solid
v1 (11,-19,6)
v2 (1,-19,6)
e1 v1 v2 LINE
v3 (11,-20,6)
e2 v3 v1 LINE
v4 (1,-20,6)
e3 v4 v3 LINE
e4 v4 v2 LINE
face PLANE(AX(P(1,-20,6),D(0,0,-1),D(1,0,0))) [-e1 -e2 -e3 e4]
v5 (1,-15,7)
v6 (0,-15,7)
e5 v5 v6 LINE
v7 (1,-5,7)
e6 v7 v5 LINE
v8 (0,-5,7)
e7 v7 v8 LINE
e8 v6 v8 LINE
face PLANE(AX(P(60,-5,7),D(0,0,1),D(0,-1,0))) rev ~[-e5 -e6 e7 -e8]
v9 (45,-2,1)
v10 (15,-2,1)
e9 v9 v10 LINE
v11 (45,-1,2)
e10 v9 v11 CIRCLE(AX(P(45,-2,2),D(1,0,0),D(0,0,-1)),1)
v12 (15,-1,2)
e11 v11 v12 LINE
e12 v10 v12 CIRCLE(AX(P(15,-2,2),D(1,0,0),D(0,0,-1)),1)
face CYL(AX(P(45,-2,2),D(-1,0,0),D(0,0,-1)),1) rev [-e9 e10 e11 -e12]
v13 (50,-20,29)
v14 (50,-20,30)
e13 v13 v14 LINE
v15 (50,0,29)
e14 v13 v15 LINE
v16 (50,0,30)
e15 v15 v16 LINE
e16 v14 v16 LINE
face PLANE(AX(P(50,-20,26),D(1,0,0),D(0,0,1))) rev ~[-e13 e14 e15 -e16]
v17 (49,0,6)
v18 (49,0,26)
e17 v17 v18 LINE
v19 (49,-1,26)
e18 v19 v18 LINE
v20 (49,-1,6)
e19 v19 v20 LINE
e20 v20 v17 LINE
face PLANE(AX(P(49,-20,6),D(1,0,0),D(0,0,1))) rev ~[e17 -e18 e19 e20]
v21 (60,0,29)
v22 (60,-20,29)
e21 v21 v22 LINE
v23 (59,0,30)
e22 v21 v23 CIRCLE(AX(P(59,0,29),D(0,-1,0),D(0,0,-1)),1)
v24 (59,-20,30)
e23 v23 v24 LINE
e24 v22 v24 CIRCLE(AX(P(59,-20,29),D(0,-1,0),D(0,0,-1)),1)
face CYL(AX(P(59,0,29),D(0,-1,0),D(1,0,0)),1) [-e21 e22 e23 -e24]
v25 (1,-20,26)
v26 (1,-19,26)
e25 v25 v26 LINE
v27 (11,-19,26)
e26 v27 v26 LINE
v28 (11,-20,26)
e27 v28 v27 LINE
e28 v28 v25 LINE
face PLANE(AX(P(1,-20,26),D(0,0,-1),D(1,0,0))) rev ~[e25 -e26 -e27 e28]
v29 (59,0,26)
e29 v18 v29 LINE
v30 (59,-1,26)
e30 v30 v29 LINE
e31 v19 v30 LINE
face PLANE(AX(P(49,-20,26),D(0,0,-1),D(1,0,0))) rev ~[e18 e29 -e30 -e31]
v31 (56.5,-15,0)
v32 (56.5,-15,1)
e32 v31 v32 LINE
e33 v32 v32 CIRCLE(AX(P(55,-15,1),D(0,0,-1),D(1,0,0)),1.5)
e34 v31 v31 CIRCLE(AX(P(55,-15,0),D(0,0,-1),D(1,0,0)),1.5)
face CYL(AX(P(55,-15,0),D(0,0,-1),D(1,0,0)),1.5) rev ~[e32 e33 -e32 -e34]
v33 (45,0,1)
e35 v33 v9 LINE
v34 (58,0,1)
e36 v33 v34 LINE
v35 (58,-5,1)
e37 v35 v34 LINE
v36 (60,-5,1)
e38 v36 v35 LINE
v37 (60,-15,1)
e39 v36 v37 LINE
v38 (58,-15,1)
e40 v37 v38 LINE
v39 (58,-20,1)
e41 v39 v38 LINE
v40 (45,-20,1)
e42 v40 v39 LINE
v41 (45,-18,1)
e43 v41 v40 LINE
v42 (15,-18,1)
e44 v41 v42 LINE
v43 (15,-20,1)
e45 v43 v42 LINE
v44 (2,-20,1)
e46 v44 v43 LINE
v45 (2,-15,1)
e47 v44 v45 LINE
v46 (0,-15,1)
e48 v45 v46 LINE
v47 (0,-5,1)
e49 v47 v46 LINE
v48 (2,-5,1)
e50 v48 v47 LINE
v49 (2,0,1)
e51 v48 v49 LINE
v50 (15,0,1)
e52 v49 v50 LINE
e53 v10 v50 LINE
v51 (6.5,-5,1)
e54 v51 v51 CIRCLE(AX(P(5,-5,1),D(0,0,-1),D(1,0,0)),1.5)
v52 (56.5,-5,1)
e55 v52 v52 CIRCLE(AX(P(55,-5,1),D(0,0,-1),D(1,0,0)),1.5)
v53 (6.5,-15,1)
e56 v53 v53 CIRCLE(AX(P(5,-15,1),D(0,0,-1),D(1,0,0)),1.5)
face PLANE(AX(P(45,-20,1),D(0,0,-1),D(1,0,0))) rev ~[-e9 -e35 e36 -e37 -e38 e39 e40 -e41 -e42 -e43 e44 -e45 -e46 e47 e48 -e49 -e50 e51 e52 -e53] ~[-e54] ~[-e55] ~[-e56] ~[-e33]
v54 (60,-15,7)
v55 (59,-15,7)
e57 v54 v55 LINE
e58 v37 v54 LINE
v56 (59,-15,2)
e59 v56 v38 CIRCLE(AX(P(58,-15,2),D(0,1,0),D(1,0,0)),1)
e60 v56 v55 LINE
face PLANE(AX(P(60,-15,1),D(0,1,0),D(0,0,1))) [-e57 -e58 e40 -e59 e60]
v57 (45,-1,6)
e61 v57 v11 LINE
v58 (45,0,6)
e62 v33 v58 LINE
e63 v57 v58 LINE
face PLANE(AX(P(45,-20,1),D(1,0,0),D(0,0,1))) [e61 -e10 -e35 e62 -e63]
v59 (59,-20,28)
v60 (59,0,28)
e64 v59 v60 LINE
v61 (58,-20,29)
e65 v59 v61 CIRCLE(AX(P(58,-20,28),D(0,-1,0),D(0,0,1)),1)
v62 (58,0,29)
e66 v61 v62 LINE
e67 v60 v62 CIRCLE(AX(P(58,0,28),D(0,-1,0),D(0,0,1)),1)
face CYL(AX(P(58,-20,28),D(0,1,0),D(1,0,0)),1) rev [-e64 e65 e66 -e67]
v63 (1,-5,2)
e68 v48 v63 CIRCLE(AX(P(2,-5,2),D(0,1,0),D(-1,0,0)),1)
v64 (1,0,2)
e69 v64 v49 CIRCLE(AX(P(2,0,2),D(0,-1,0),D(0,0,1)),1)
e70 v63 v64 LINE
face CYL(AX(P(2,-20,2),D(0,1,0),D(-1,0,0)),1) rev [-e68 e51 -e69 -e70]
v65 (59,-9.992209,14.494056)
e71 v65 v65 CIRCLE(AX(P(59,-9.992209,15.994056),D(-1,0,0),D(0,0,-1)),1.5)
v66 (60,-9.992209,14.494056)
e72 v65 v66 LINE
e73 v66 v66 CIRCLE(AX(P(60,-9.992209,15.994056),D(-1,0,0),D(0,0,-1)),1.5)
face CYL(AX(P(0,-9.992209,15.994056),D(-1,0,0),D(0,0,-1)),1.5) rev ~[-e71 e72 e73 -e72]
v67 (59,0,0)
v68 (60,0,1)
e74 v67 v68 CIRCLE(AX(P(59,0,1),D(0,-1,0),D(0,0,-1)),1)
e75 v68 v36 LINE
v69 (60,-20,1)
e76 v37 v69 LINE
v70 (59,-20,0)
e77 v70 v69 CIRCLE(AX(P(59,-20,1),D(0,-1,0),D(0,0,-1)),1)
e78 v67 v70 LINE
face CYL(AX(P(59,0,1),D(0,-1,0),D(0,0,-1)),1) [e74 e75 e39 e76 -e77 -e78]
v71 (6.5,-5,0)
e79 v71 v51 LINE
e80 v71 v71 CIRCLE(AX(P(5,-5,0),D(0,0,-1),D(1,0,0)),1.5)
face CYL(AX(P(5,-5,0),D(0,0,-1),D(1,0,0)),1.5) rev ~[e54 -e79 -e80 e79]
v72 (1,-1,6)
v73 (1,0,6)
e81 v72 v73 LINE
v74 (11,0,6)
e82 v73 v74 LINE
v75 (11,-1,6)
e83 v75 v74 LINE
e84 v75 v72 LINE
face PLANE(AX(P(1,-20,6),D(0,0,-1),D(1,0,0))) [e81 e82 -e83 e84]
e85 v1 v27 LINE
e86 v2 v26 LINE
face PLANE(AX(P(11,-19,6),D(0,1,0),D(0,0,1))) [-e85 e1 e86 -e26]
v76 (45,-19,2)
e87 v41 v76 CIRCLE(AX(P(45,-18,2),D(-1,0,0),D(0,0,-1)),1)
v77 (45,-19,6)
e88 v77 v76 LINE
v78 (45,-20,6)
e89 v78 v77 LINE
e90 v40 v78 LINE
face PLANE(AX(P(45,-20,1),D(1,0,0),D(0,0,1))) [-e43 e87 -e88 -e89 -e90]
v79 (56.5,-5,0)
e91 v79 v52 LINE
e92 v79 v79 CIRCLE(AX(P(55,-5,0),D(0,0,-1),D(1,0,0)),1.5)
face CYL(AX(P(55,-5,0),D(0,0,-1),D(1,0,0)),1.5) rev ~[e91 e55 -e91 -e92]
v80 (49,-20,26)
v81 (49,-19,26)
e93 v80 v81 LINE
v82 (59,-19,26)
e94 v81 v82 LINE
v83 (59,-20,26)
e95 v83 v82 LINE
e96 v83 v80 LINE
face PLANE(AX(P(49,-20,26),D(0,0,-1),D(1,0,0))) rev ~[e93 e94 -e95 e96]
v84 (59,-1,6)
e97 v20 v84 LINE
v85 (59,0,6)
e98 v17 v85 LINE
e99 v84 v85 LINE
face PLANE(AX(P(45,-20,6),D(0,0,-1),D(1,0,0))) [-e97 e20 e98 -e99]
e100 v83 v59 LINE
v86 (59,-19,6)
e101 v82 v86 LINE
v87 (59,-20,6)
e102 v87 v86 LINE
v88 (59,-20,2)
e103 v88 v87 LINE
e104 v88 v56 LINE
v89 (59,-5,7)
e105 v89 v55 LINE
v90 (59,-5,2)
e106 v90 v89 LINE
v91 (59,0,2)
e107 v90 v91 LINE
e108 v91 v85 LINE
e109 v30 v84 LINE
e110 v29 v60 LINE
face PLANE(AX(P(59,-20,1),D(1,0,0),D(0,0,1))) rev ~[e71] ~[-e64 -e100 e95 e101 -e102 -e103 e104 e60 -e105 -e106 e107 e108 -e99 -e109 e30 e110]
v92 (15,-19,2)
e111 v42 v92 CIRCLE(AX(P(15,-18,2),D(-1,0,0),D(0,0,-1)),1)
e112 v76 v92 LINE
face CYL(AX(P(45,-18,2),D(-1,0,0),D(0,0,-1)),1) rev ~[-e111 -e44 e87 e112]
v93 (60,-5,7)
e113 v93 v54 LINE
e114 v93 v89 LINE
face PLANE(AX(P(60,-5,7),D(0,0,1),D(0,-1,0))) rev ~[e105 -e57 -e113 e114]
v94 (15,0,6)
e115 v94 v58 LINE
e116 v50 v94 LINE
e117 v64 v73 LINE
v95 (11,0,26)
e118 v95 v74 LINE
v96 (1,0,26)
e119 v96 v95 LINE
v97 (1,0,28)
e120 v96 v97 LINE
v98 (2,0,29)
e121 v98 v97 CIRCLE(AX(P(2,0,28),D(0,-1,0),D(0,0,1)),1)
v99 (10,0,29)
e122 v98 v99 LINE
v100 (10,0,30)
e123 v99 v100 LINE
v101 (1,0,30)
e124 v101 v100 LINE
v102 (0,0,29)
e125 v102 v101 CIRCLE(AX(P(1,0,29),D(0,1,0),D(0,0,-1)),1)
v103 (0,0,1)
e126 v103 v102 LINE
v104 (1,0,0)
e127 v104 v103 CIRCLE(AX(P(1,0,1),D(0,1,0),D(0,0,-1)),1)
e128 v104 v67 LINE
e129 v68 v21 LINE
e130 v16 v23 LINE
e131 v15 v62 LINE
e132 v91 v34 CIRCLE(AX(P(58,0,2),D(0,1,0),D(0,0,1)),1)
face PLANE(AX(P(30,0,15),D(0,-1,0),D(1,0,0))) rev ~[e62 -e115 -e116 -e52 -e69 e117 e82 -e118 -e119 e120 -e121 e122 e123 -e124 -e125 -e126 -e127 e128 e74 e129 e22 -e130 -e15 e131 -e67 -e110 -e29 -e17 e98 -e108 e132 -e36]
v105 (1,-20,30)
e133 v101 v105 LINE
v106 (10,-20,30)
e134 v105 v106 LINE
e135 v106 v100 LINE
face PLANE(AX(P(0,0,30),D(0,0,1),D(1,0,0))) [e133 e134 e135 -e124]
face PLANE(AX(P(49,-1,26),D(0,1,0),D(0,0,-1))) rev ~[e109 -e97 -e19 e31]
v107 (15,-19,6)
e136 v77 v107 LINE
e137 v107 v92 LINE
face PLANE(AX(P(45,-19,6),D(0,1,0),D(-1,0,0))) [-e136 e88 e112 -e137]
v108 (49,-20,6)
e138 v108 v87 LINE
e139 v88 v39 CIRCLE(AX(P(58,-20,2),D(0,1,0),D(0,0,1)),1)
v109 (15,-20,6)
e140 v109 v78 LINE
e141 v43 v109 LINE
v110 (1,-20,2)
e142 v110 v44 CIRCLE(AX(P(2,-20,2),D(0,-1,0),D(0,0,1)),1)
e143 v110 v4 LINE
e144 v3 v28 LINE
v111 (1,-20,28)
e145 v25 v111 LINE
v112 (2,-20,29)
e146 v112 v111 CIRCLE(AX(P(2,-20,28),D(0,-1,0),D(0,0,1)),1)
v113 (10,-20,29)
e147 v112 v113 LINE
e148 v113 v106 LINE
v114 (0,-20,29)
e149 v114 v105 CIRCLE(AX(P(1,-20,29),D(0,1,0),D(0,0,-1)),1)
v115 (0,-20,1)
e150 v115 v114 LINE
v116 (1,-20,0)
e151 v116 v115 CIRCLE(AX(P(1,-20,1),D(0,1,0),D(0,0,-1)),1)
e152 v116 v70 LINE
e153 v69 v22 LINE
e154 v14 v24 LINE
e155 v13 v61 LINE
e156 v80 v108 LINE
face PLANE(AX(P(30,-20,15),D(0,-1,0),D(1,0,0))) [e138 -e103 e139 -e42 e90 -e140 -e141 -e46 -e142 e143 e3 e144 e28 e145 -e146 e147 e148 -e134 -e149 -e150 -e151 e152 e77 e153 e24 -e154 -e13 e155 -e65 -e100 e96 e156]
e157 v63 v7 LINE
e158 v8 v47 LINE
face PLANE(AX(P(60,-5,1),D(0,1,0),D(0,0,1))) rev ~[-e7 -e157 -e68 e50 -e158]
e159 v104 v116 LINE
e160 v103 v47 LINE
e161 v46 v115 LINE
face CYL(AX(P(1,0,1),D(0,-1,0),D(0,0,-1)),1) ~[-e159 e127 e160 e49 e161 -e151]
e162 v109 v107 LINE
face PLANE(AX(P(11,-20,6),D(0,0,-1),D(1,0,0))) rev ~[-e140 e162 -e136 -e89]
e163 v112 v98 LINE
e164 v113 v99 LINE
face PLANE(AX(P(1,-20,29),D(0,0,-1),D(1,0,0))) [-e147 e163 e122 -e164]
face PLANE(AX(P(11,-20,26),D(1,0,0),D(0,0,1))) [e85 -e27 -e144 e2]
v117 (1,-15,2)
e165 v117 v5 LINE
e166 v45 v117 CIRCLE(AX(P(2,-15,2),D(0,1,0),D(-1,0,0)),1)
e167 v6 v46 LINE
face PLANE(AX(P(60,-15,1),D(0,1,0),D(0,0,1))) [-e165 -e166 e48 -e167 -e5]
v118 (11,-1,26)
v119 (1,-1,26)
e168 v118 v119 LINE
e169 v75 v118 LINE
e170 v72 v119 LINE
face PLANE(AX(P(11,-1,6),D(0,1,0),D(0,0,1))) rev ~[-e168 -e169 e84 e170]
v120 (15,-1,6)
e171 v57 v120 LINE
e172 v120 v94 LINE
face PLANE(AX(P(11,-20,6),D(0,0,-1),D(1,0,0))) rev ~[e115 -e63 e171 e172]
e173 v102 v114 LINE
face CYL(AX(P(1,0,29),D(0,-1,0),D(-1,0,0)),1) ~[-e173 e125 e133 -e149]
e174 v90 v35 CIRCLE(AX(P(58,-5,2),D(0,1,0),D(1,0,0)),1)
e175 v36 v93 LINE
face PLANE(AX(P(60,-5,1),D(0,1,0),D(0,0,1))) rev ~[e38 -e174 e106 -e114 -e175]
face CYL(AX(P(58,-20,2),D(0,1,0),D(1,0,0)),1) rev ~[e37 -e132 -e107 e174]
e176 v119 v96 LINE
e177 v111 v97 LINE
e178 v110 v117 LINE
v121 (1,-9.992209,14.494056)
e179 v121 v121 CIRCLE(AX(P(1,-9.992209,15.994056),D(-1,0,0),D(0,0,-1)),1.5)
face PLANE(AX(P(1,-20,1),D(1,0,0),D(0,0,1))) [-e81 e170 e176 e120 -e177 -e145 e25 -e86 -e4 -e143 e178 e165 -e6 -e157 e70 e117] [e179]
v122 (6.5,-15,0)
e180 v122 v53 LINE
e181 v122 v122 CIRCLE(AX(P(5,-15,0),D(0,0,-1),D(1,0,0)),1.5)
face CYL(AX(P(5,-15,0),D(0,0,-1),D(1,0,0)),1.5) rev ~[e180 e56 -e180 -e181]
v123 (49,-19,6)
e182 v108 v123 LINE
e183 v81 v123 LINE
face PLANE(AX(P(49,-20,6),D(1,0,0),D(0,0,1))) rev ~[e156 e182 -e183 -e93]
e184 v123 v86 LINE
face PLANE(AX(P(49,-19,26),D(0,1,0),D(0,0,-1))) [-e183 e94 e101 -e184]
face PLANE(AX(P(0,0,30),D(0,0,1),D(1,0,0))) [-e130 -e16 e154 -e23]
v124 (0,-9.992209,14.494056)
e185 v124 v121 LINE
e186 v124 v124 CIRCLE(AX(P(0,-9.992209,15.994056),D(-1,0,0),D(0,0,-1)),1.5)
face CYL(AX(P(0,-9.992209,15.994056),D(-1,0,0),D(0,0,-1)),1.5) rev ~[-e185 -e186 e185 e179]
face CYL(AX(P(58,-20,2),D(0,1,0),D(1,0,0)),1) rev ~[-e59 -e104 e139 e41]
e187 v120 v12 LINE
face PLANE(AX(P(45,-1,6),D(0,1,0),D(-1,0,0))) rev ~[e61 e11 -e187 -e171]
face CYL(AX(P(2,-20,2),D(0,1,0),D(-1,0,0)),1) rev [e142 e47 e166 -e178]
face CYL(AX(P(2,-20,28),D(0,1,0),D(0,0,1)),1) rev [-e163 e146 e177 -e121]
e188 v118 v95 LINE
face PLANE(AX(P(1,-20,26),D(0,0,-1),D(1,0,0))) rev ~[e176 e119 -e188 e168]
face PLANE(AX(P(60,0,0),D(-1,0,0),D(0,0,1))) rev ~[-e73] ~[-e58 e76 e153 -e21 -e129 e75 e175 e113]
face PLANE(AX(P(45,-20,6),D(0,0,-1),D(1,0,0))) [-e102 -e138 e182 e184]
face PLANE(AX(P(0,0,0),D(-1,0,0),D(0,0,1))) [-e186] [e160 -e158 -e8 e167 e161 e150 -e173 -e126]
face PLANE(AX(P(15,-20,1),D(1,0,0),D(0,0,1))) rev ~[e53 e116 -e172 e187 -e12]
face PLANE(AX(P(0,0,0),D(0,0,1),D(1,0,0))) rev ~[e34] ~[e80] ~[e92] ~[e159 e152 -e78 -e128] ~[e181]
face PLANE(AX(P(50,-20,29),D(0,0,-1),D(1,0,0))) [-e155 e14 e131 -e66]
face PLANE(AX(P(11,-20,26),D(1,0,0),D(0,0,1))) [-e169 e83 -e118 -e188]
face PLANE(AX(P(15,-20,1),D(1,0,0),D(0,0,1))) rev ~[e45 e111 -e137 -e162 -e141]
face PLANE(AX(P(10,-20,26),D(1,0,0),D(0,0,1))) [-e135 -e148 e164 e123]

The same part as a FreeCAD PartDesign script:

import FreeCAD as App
import Part
import Sketcher
Q = App.Units.Quantity


def edges_at(feature, points):
    """Names of the edges that pass closest to the given points."""
    edges = feature.Shape.Edges
    near = lambda p: min(range(len(edges)), key=lambda i: edges[i].distToShape(Part.Vertex(*p))[0])
    return sorted({f"Edge{near(p) + 1}" for p in points})

doc = App.newDocument("Part")
params = doc.addObject("Spreadsheet::Sheet", "Params")
for row, (alias, value) in enumerate([
    ("sketch1_width", "60 mm"),
    ("sketch1_height", "30 mm"),
    ("pad1_length", "20 mm"),
    ("sketch2_width", "14 mm"),
    ("sketch2_height", "5 mm"),
    ("sketch3_width", "14 mm"),
    ("sketch3_height", "5 mm"),
    ("sketch4_width", "38 mm"),
    ("sketch4_height", "20 mm"),
    ("sketch5_width", "38 mm"),
    ("sketch5_height", "5 mm"),
    ("sketch6_width", "9 mm"),
    ("sketch6_height", "3 mm"),
    ("sketch7_width", "1 mm"),
    ("sketch7_height", "4 mm"),
    ("sketch8_width", "30 mm"),
    ("sketch8_height", "18 mm"),
    ("pocket7_length", "5 mm"),
    ("fillet_radius", "1 mm"),
    ("fillet2_radius", "1 mm"),
    ("fillet3_radius", "1 mm"),
    ("fillet4_radius", "1 mm"),
    ("fillet5_radius", "1 mm"),
    ("fillet6_radius", "1 mm"),
    ("fillet7_radius", "1 mm"),
    ("fillet8_radius", "1 mm"),
    ("sketch9_width", "18 mm"),
    ("sketch9_height", "20 mm"),
    ("pocket8_length", "10 mm"),
    ("sketch10_width", "18 mm"),
    ("sketch10_height", "20 mm"),
    ("pocket9_length", "10 mm"),
    ("fillet9_radius", "1 mm"),
    ("fillet10_radius", "1 mm"),
    ("sketch11_width", "10 mm"),
    ("sketch11_height", "6 mm"),
    ("sketch12_diameter", "3 mm"),
    ("pocket11_length", "5 mm"),
    ("sketch13_diameter", "3 mm"),
], start=1):
    params.set(f"A{row}", alias)
    params.set(f"B{row}", "=" + value)
    params.setAlias(f"B{row}", alias)

body = doc.addObject("PartDesign::Body", "Body")

sketch1 = body.newObject("Sketcher::SketchObject", "Sketch")
sketch1.AttachmentSupport = (doc.getObject("XZ_Plane"), [""])
sketch1.MapMode = "FlatFace"
sketch1.addGeometry(Part.LineSegment(App.Vector(0, 30, 0), App.Vector(0, 0, 0)), False)
sketch1.addGeometry(Part.LineSegment(App.Vector(0, 0, 0), App.Vector(60, 0, 0)), False)
sketch1.addGeometry(Part.LineSegment(App.Vector(60, 0, 0), App.Vector(60, 30, 0)), False)
sketch1.addGeometry(Part.LineSegment(App.Vector(60, 30, 0), App.Vector(0, 30, 0)), False)
sketch1.addConstraint(Sketcher.Constraint("Coincident", 0, 2, 1, 1))
sketch1.addConstraint(Sketcher.Constraint("Coincident", 1, 2, 2, 1))
sketch1.addConstraint(Sketcher.Constraint("Coincident", 2, 2, 3, 1))
sketch1.addConstraint(Sketcher.Constraint("Coincident", 3, 2, 0, 1))
sketch1.addConstraint(Sketcher.Constraint("Vertical", 0))
sketch1.addConstraint(Sketcher.Constraint("Horizontal", 1))
sketch1.addConstraint(Sketcher.Constraint("Vertical", 2))
sketch1.addConstraint(Sketcher.Constraint("Horizontal", 3))
sketch1.addConstraint(Sketcher.Constraint("Coincident", 0, 2, -1, 1))
sketch1.addConstraint(Sketcher.Constraint("DistanceX", 1, 1, 1, 2, Q("60 mm")))
sketch1.addConstraint(Sketcher.Constraint("DistanceY", 0, 2, 0, 1, Q("30 mm")))
sketch1.setExpression("Constraints[9]", "Params.sketch1_width")
sketch1.setExpression("Constraints[10]", "Params.sketch1_height")
pad1 = body.newObject("PartDesign::Pad", "Pad")
pad1.Profile = sketch1
pad1.setExpression("Length", "Params.pad1_length")

sketch2 = body.newObject("Sketcher::SketchObject", "Sketch001")
sketch2.AttachmentSupport = (doc.getObject("XZ_Plane"), [""])
sketch2.MapMode = "FlatFace"
sketch2.AttachmentOffset = App.Placement(App.Vector(0, 0, 20), App.Rotation())
sketch2.addGeometry(Part.LineSegment(App.Vector(1, 6, 0), App.Vector(1, 1, 0)), False)
sketch2.addGeometry(Part.LineSegment(App.Vector(1, 1, 0), App.Vector(15, 1, 0)), False)
sketch2.addGeometry(Part.LineSegment(App.Vector(15, 1, 0), App.Vector(15, 6, 0)), False)
sketch2.addGeometry(Part.LineSegment(App.Vector(15, 6, 0), App.Vector(1, 6, 0)), False)
sketch2.addConstraint(Sketcher.Constraint("Coincident", 0, 2, 1, 1))
sketch2.addConstraint(Sketcher.Constraint("Coincident", 1, 2, 2, 1))
sketch2.addConstraint(Sketcher.Constraint("Coincident", 2, 2, 3, 1))
sketch2.addConstraint(Sketcher.Constraint("Coincident", 3, 2, 0, 1))
sketch2.addConstraint(Sketcher.Constraint("Vertical", 0))
sketch2.addConstraint(Sketcher.Constraint("Horizontal", 1))
sketch2.addConstraint(Sketcher.Constraint("Vertical", 2))
sketch2.addConstraint(Sketcher.Constraint("Horizontal", 3))
sketch2.addConstraint(Sketcher.Constraint("DistanceX", 1, 1, 1, 2, Q("14 mm")))
sketch2.addConstraint(Sketcher.Constraint("DistanceY", 0, 2, 0, 1, Q("5 mm")))
sketch2.addConstraint(Sketcher.Constraint("DistanceX", -1, 1, 0, 2, Q("1 mm")))
sketch2.addConstraint(Sketcher.Constraint("DistanceY", -1, 1, 0, 2, Q("1 mm")))
sketch2.setExpression("Constraints[8]", "Params.sketch2_width")
sketch2.setExpression("Constraints[9]", "Params.sketch2_height")
pocket1 = body.newObject("PartDesign::Pocket", "Pocket")
pocket1.Profile = sketch2
pocket1.Type = "ThroughAll"

sketch3 = body.newObject("Sketcher::SketchObject", "Sketch002")
sketch3.AttachmentSupport = (doc.getObject("XZ_Plane"), [""])
sketch3.MapMode = "FlatFace"
sketch3.AttachmentOffset = App.Placement(App.Vector(0, 0, 20), App.Rotation())
sketch3.addGeometry(Part.LineSegment(App.Vector(45, 6, 0), App.Vector(45, 1, 0)), False)
sketch3.addGeometry(Part.LineSegment(App.Vector(45, 1, 0), App.Vector(59, 1, 0)), False)
sketch3.addGeometry(Part.LineSegment(App.Vector(59, 1, 0), App.Vector(59, 6, 0)), False)
sketch3.addGeometry(Part.LineSegment(App.Vector(59, 6, 0), App.Vector(45, 6, 0)), False)
sketch3.addConstraint(Sketcher.Constraint("Coincident", 0, 2, 1, 1))
sketch3.addConstraint(Sketcher.Constraint("Coincident", 1, 2, 2, 1))
sketch3.addConstraint(Sketcher.Constraint("Coincident", 2, 2, 3, 1))
sketch3.addConstraint(Sketcher.Constraint("Coincident", 3, 2, 0, 1))
sketch3.addConstraint(Sketcher.Constraint("Vertical", 0))
sketch3.addConstraint(Sketcher.Constraint("Horizontal", 1))
sketch3.addConstraint(Sketcher.Constraint("Vertical", 2))
sketch3.addConstraint(Sketcher.Constraint("Horizontal", 3))
sketch3.addConstraint(Sketcher.Constraint("DistanceX", 1, 1, 1, 2, Q("14 mm")))
sketch3.addConstraint(Sketcher.Constraint("DistanceY", 0, 2, 0, 1, Q("5 mm")))
sketch3.addConstraint(Sketcher.Constraint("DistanceX", -1, 1, 0, 2, Q("45 mm")))
sketch3.addConstraint(Sketcher.Constraint("DistanceY", -1, 1, 0, 2, Q("1 mm")))
sketch3.setExpression("Constraints[8]", "Params.sketch3_width")
sketch3.setExpression("Constraints[9]", "Params.sketch3_height")
pocket2 = body.newObject("PartDesign::Pocket", "Pocket001")
pocket2.Profile = sketch3
pocket2.Type = "ThroughAll"

sketch4 = body.newObject("Sketcher::SketchObject", "Sketch003")
sketch4.AttachmentSupport = (doc.getObject("XZ_Plane"), [""])
sketch4.MapMode = "FlatFace"
sketch4.AttachmentOffset = App.Placement(App.Vector(0, 0, 20), App.Rotation())
sketch4.addGeometry(Part.LineSegment(App.Vector(11, 26, 0), App.Vector(11, 6, 0)), False)
sketch4.addGeometry(Part.LineSegment(App.Vector(11, 6, 0), App.Vector(49, 6, 0)), False)
sketch4.addGeometry(Part.LineSegment(App.Vector(49, 6, 0), App.Vector(49, 26, 0)), False)
sketch4.addGeometry(Part.LineSegment(App.Vector(49, 26, 0), App.Vector(11, 26, 0)), False)
sketch4.addConstraint(Sketcher.Constraint("Coincident", 0, 2, 1, 1))
sketch4.addConstraint(Sketcher.Constraint("Coincident", 1, 2, 2, 1))
sketch4.addConstraint(Sketcher.Constraint("Coincident", 2, 2, 3, 1))
sketch4.addConstraint(Sketcher.Constraint("Coincident", 3, 2, 0, 1))
sketch4.addConstraint(Sketcher.Constraint("Vertical", 0))
sketch4.addConstraint(Sketcher.Constraint("Horizontal", 1))
sketch4.addConstraint(Sketcher.Constraint("Vertical", 2))
sketch4.addConstraint(Sketcher.Constraint("Horizontal", 3))
sketch4.addConstraint(Sketcher.Constraint("DistanceX", 1, 1, 1, 2, Q("38 mm")))
sketch4.addConstraint(Sketcher.Constraint("DistanceY", 0, 2, 0, 1, Q("20 mm")))
sketch4.addConstraint(Sketcher.Constraint("DistanceX", -1, 1, 0, 2, Q("11 mm")))
sketch4.addConstraint(Sketcher.Constraint("DistanceY", -1, 1, 0, 2, Q("6 mm")))
sketch4.setExpression("Constraints[8]", "Params.sketch4_width")
sketch4.setExpression("Constraints[9]", "Params.sketch4_height")
pocket3 = body.newObject("PartDesign::Pocket", "Pocket002")
pocket3.Profile = sketch4
pocket3.Type = "ThroughAll"

sketch5 = body.newObject("Sketcher::SketchObject", "Sketch004")
sketch5.AttachmentSupport = (doc.getObject("XZ_Plane"), [""])
sketch5.MapMode = "FlatFace"
sketch5.AttachmentOffset = App.Placement(App.Vector(0, 0, 20), App.Rotation())
sketch5.addGeometry(Part.LineSegment(App.Vector(11, 31, 0), App.Vector(11, 26, 0)), False)
sketch5.addGeometry(Part.LineSegment(App.Vector(11, 26, 0), App.Vector(49, 26, 0)), False)
sketch5.addGeometry(Part.LineSegment(App.Vector(49, 26, 0), App.Vector(49, 31, 0)), False)
sketch5.addGeometry(Part.LineSegment(App.Vector(49, 31, 0), App.Vector(11, 31, 0)), False)
sketch5.addConstraint(Sketcher.Constraint("Coincident", 0, 2, 1, 1))
sketch5.addConstraint(Sketcher.Constraint("Coincident", 1, 2, 2, 1))
sketch5.addConstraint(Sketcher.Constraint("Coincident", 2, 2, 3, 1))
sketch5.addConstraint(Sketcher.Constraint("Coincident", 3, 2, 0, 1))
sketch5.addConstraint(Sketcher.Constraint("Vertical", 0))
sketch5.addConstraint(Sketcher.Constraint("Horizontal", 1))
sketch5.addConstraint(Sketcher.Constraint("Vertical", 2))
sketch5.addConstraint(Sketcher.Constraint("Horizontal", 3))
sketch5.addConstraint(Sketcher.Constraint("DistanceX", 1, 1, 1, 2, Q("38 mm")))
sketch5.addConstraint(Sketcher.Constraint("DistanceY", 0, 2, 0, 1, Q("5 mm")))
sketch5.addConstraint(Sketcher.Constraint("DistanceX", -1, 1, 0, 2, Q("11 mm")))
sketch5.addConstraint(Sketcher.Constraint("DistanceY", -1, 1, 0, 2, Q("26 mm")))
sketch5.setExpression("Constraints[8]", "Params.sketch5_width")
sketch5.setExpression("Constraints[9]", "Params.sketch5_height")
pocket4 = body.newObject("PartDesign::Pocket", "Pocket003")
pocket4.Profile = sketch5
pocket4.Type = "ThroughAll"

sketch6 = body.newObject("Sketcher::SketchObject", "Sketch005")
sketch6.AttachmentSupport = (doc.getObject("XZ_Plane"), [""])
sketch6.MapMode = "FlatFace"
sketch6.AttachmentOffset = App.Placement(App.Vector(0, 0, 20), App.Rotation())
sketch6.addGeometry(Part.LineSegment(App.Vector(1, 29, 0), App.Vector(1, 26, 0)), False)
sketch6.addGeometry(Part.LineSegment(App.Vector(1, 26, 0), App.Vector(10, 26, 0)), False)
sketch6.addGeometry(Part.LineSegment(App.Vector(10, 26, 0), App.Vector(10, 29, 0)), False)
sketch6.addGeometry(Part.LineSegment(App.Vector(10, 29, 0), App.Vector(1, 29, 0)), False)
sketch6.addGeometry(Part.LineSegment(App.Vector(50, 29, 0), App.Vector(50, 26, 0)), False)
sketch6.addGeometry(Part.LineSegment(App.Vector(50, 26, 0), App.Vector(59, 26, 0)), False)
sketch6.addGeometry(Part.LineSegment(App.Vector(59, 26, 0), App.Vector(59, 29, 0)), False)
sketch6.addGeometry(Part.LineSegment(App.Vector(59, 29, 0), App.Vector(50, 29, 0)), False)
sketch6.addConstraint(Sketcher.Constraint("Coincident", 0, 2, 1, 1))
sketch6.addConstraint(Sketcher.Constraint("Coincident", 1, 2, 2, 1))
sketch6.addConstraint(Sketcher.Constraint("Coincident", 2, 2, 3, 1))
sketch6.addConstraint(Sketcher.Constraint("Coincident", 3, 2, 0, 1))
sketch6.addConstraint(Sketcher.Constraint("Coincident", 4, 2, 5, 1))
sketch6.addConstraint(Sketcher.Constraint("Coincident", 5, 2, 6, 1))
sketch6.addConstraint(Sketcher.Constraint("Coincident", 6, 2, 7, 1))
sketch6.addConstraint(Sketcher.Constraint("Coincident", 7, 2, 4, 1))
sketch6.addConstraint(Sketcher.Constraint("Vertical", 0))
sketch6.addConstraint(Sketcher.Constraint("Horizontal", 1))
sketch6.addConstraint(Sketcher.Constraint("Vertical", 2))
sketch6.addConstraint(Sketcher.Constraint("Horizontal", 3))
sketch6.addConstraint(Sketcher.Constraint("Vertical", 4))
sketch6.addConstraint(Sketcher.Constraint("Horizontal", 5))
sketch6.addConstraint(Sketcher.Constraint("Vertical", 6))
sketch6.addConstraint(Sketcher.Constraint("Horizontal", 7))
sketch6.addConstraint(Sketcher.Constraint("Horizontal", 1, 2, 4, 2))
sketch6.addConstraint(Sketcher.Constraint("Horizontal", 3, 2, 6, 2))
sketch6.addConstraint(Sketcher.Constraint("Equal", 3, 5))
sketch6.addConstraint(Sketcher.Constraint("DistanceX", 1, 1, 1, 2, Q("9 mm")))
sketch6.addConstraint(Sketcher.Constraint("DistanceY", 0, 2, 0, 1, Q("3 mm")))
sketch6.addConstraint(Sketcher.Constraint("DistanceX", -1, 1, 0, 2, Q("1 mm")))
sketch6.addConstraint(Sketcher.Constraint("DistanceY", -1, 1, 0, 2, Q("26 mm")))
sketch6.addConstraint(Sketcher.Constraint("DistanceX", -1, 1, 4, 2, Q("50 mm")))
sketch6.setExpression("Constraints[19]", "Params.sketch6_width")
sketch6.setExpression("Constraints[20]", "Params.sketch6_height")
pocket5 = body.newObject("PartDesign::Pocket", "Pocket004")
pocket5.Profile = sketch6
pocket5.Type = "ThroughAll"

sketch7 = body.newObject("Sketcher::SketchObject", "Sketch006")
sketch7.AttachmentSupport = (doc.getObject("XZ_Plane"), [""])
sketch7.MapMode = "FlatFace"
sketch7.AttachmentOffset = App.Placement(App.Vector(0, 0, 20), App.Rotation())
sketch7.addGeometry(Part.LineSegment(App.Vector(10, 30, 0), App.Vector(10, 26, 0)), False)
sketch7.addGeometry(Part.LineSegment(App.Vector(10, 26, 0), App.Vector(11, 26, 0)), False)
sketch7.addGeometry(Part.LineSegment(App.Vector(11, 26, 0), App.Vector(11, 30, 0)), False)
sketch7.addGeometry(Part.LineSegment(App.Vector(11, 30, 0), App.Vector(10, 30, 0)), False)
sketch7.addGeometry(Part.LineSegment(App.Vector(49, 30, 0), App.Vector(49, 26, 0)), False)
sketch7.addGeometry(Part.LineSegment(App.Vector(49, 26, 0), App.Vector(50, 26, 0)), False)
sketch7.addGeometry(Part.LineSegment(App.Vector(50, 26, 0), App.Vector(50, 30, 0)), False)
sketch7.addGeometry(Part.LineSegment(App.Vector(50, 30, 0), App.Vector(49, 30, 0)), False)
sketch7.addConstraint(Sketcher.Constraint("Coincident", 0, 2, 1, 1))
sketch7.addConstraint(Sketcher.Constraint("Coincident", 1, 2, 2, 1))
sketch7.addConstraint(Sketcher.Constraint("Coincident", 2, 2, 3, 1))
sketch7.addConstraint(Sketcher.Constraint("Coincident", 3, 2, 0, 1))
sketch7.addConstraint(Sketcher.Constraint("Coincident", 4, 2, 5, 1))
sketch7.addConstraint(Sketcher.Constraint("Coincident", 5, 2, 6, 1))
sketch7.addConstraint(Sketcher.Constraint("Coincident", 6, 2, 7, 1))
sketch7.addConstraint(Sketcher.Constraint("Coincident", 7, 2, 4, 1))
sketch7.addConstraint(Sketcher.Constraint("Vertical", 0))
sketch7.addConstraint(Sketcher.Constraint("Horizontal", 1))
sketch7.addConstraint(Sketcher.Constraint("Vertical", 2))
sketch7.addConstraint(Sketcher.Constraint("Horizontal", 3))
sketch7.addConstraint(Sketcher.Constraint("Vertical", 4))
sketch7.addConstraint(Sketcher.Constraint("Horizontal", 5))
sketch7.addConstraint(Sketcher.Constraint("Vertical", 6))
sketch7.addConstraint(Sketcher.Constraint("Horizontal", 7))
sketch7.addConstraint(Sketcher.Constraint("Horizontal", 1, 2, 4, 2))
sketch7.addConstraint(Sketcher.Constraint("Horizontal", 3, 2, 6, 2))
sketch7.addConstraint(Sketcher.Constraint("Equal", 3, 5))
sketch7.addConstraint(Sketcher.Constraint("DistanceX", 1, 1, 1, 2, Q("1 mm")))
sketch7.addConstraint(Sketcher.Constraint("DistanceY", 0, 2, 0, 1, Q("4 mm")))
sketch7.addConstraint(Sketcher.Constraint("DistanceX", -1, 1, 0, 2, Q("10 mm")))
sketch7.addConstraint(Sketcher.Constraint("DistanceY", -1, 1, 0, 2, Q("26 mm")))
sketch7.addConstraint(Sketcher.Constraint("DistanceX", -1, 1, 4, 2, Q("49 mm")))
sketch7.setExpression("Constraints[19]", "Params.sketch7_width")
sketch7.setExpression("Constraints[20]", "Params.sketch7_height")
pocket6 = body.newObject("PartDesign::Pocket", "Pocket005")
pocket6.Profile = sketch7
pocket6.Type = "ThroughAll"

sketch8 = body.newObject("Sketcher::SketchObject", "Sketch007")
sketch8.AttachmentSupport = (doc.getObject("XY_Plane"), [""])
sketch8.MapMode = "FlatFace"
sketch8.AttachmentOffset = App.Placement(App.Vector(0, 0, 6), App.Rotation())
sketch8.addGeometry(Part.LineSegment(App.Vector(45, -19, 0), App.Vector(45, -1, 0)), False)
sketch8.addGeometry(Part.LineSegment(App.Vector(45, -1, 0), App.Vector(15, -1, 0)), False)
sketch8.addGeometry(Part.LineSegment(App.Vector(15, -1, 0), App.Vector(15, -19, 0)), False)
sketch8.addGeometry(Part.LineSegment(App.Vector(15, -19, 0), App.Vector(45, -19, 0)), False)
sketch8.addConstraint(Sketcher.Constraint("Coincident", 0, 2, 1, 1))
sketch8.addConstraint(Sketcher.Constraint("Coincident", 1, 2, 2, 1))
sketch8.addConstraint(Sketcher.Constraint("Coincident", 2, 2, 3, 1))
sketch8.addConstraint(Sketcher.Constraint("Coincident", 3, 2, 0, 1))
sketch8.addConstraint(Sketcher.Constraint("Vertical", 0))
sketch8.addConstraint(Sketcher.Constraint("Horizontal", 1))
sketch8.addConstraint(Sketcher.Constraint("Vertical", 2))
sketch8.addConstraint(Sketcher.Constraint("Horizontal", 3))
sketch8.addConstraint(Sketcher.Constraint("DistanceX", 1, 2, 1, 1, Q("30 mm")))
sketch8.addConstraint(Sketcher.Constraint("DistanceY", 0, 1, 0, 2, Q("18 mm")))
sketch8.addConstraint(Sketcher.Constraint("DistanceX", -1, 1, 0, 2, Q("45 mm")))
sketch8.addConstraint(Sketcher.Constraint("DistanceY", 0, 2, -1, 1, Q("1 mm")))
sketch8.setExpression("Constraints[8]", "Params.sketch8_width")
sketch8.setExpression("Constraints[9]", "Params.sketch8_height")
pocket7 = body.newObject("PartDesign::Pocket", "Pocket006")
pocket7.Profile = sketch8
pocket7.setExpression("Length", "Params.pocket7_length")
doc.recompute()

fillet = body.newObject("PartDesign::Fillet", "Fillet")
fillet.Base = (pocket7, edges_at(pocket7, [(60, -10, 0)]))
fillet.setExpression("Radius", "Params.fillet_radius")
doc.recompute()

fillet2 = body.newObject("PartDesign::Fillet", "Fillet001")
fillet2.Base = (fillet, edges_at(fillet, [(0, -10, 0)]))
fillet2.setExpression("Radius", "Params.fillet2_radius")
doc.recompute()

fillet3 = body.newObject("PartDesign::Fillet", "Fillet002")
fillet3.Base = (fillet2, edges_at(fillet2, [(0, -10, 30)]))
fillet3.setExpression("Radius", "Params.fillet3_radius")
doc.recompute()

fillet4 = body.newObject("PartDesign::Fillet", "Fillet003")
fillet4.Base = (fillet3, edges_at(fillet3, [(60, -10, 30)]))
fillet4.setExpression("Radius", "Params.fillet4_radius")
doc.recompute()

fillet5 = body.newObject("PartDesign::Fillet", "Fillet004")
fillet5.Base = (fillet4, edges_at(fillet4, [(1, -10, 29)]))
fillet5.setExpression("Radius", "Params.fillet5_radius")
doc.recompute()

fillet6 = body.newObject("PartDesign::Fillet", "Fillet005")
fillet6.Base = (fillet5, edges_at(fillet5, [(1, -10, 1)]))
fillet6.setExpression("Radius", "Params.fillet6_radius")
doc.recompute()

fillet7 = body.newObject("PartDesign::Fillet", "Fillet006")
fillet7.Base = (fillet6, edges_at(fillet6, [(59, -10, 29)]))
fillet7.setExpression("Radius", "Params.fillet7_radius")
doc.recompute()

fillet8 = body.newObject("PartDesign::Fillet", "Fillet007")
fillet8.Base = (fillet7, edges_at(fillet7, [(59, -10, 1)]))
fillet8.setExpression("Radius", "Params.fillet8_radius")

sketch9 = body.newObject("Sketcher::SketchObject", "Sketch008")
sketch9.AttachmentSupport = (doc.getObject("YZ_Plane"), [""])
sketch9.MapMode = "FlatFace"
sketch9.AttachmentOffset = App.Placement(App.Vector(0, 0, 49), App.Rotation())
sketch9.addGeometry(Part.LineSegment(App.Vector(-19, 26, 0), App.Vector(-1, 26, 0)), False)
sketch9.addGeometry(Part.LineSegment(App.Vector(-1, 26, 0), App.Vector(-1, 6, 0)), False)
sketch9.addGeometry(Part.LineSegment(App.Vector(-1, 6, 0), App.Vector(-19, 6, 0)), False)
sketch9.addGeometry(Part.LineSegment(App.Vector(-19, 6, 0), App.Vector(-19, 26, 0)), False)
sketch9.addConstraint(Sketcher.Constraint("Coincident", 0, 2, 1, 1))
sketch9.addConstraint(Sketcher.Constraint("Coincident", 1, 2, 2, 1))
sketch9.addConstraint(Sketcher.Constraint("Coincident", 2, 2, 3, 1))
sketch9.addConstraint(Sketcher.Constraint("Coincident", 3, 2, 0, 1))
sketch9.addConstraint(Sketcher.Constraint("Horizontal", 0))
sketch9.addConstraint(Sketcher.Constraint("Vertical", 1))
sketch9.addConstraint(Sketcher.Constraint("Horizontal", 2))
sketch9.addConstraint(Sketcher.Constraint("Vertical", 3))
sketch9.addConstraint(Sketcher.Constraint("DistanceX", 0, 1, 0, 2, Q("18 mm")))
sketch9.addConstraint(Sketcher.Constraint("DistanceY", 1, 2, 1, 1, Q("20 mm")))
sketch9.addConstraint(Sketcher.Constraint("DistanceX", 0, 2, -1, 1, Q("1 mm")))
sketch9.addConstraint(Sketcher.Constraint("DistanceY", -1, 1, 0, 2, Q("26 mm")))
sketch9.setExpression("Constraints[8]", "Params.sketch9_width")
sketch9.setExpression("Constraints[9]", "Params.sketch9_height")
pocket8 = body.newObject("PartDesign::Pocket", "Pocket007")
pocket8.Profile = sketch9
pocket8.setExpression("Length", "Params.pocket8_length")
pocket8.Reversed = True

sketch10 = body.newObject("Sketcher::SketchObject", "Sketch009")
sketch10.AttachmentSupport = (doc.getObject("YZ_Plane"), [""])
sketch10.MapMode = "FlatFace"
sketch10.AttachmentOffset = App.Placement(App.Vector(0, 0, 11), App.Rotation())
sketch10.addGeometry(Part.LineSegment(App.Vector(-19, 6, 0), App.Vector(-1, 6, 0)), False)
sketch10.addGeometry(Part.LineSegment(App.Vector(-1, 6, 0), App.Vector(-1, 26, 0)), False)
sketch10.addGeometry(Part.LineSegment(App.Vector(-1, 26, 0), App.Vector(-19, 26, 0)), False)
sketch10.addGeometry(Part.LineSegment(App.Vector(-19, 26, 0), App.Vector(-19, 6, 0)), False)
sketch10.addConstraint(Sketcher.Constraint("Coincident", 0, 2, 1, 1))
sketch10.addConstraint(Sketcher.Constraint("Coincident", 1, 2, 2, 1))
sketch10.addConstraint(Sketcher.Constraint("Coincident", 2, 2, 3, 1))
sketch10.addConstraint(Sketcher.Constraint("Coincident", 3, 2, 0, 1))
sketch10.addConstraint(Sketcher.Constraint("Horizontal", 0))
sketch10.addConstraint(Sketcher.Constraint("Vertical", 1))
sketch10.addConstraint(Sketcher.Constraint("Horizontal", 2))
sketch10.addConstraint(Sketcher.Constraint("Vertical", 3))
sketch10.addConstraint(Sketcher.Constraint("DistanceX", 0, 1, 0, 2, Q("18 mm")))
sketch10.addConstraint(Sketcher.Constraint("DistanceY", 1, 1, 1, 2, Q("20 mm")))
sketch10.addConstraint(Sketcher.Constraint("DistanceX", 0, 2, -1, 1, Q("1 mm")))
sketch10.addConstraint(Sketcher.Constraint("DistanceY", -1, 1, 0, 2, Q("6 mm")))
sketch10.setExpression("Constraints[8]", "Params.sketch10_width")
sketch10.setExpression("Constraints[9]", "Params.sketch10_height")
pocket9 = body.newObject("PartDesign::Pocket", "Pocket008")
pocket9.Profile = sketch10
pocket9.setExpression("Length", "Params.pocket9_length")
doc.recompute()

fillet9 = body.newObject("PartDesign::Fillet", "Fillet008")
fillet9.Base = (pocket9, edges_at(pocket9, [(30, -19, 1)]))
fillet9.setExpression("Radius", "Params.fillet9_radius")
doc.recompute()

fillet10 = body.newObject("PartDesign::Fillet", "Fillet009")
fillet10.Base = (fillet9, edges_at(fillet9, [(30, -1, 1)]))
fillet10.setExpression("Radius", "Params.fillet10_radius")

sketch11 = body.newObject("Sketcher::SketchObject", "Sketch010")
sketch11.AttachmentSupport = (doc.getObject("YZ_Plane"), [""])
sketch11.MapMode = "FlatFace"
sketch11.AttachmentOffset = App.Placement(App.Vector(0, 0, 60), App.Rotation())
sketch11.addGeometry(Part.LineSegment(App.Vector(-15, 1, 0), App.Vector(-5, 1, 0)), False)
sketch11.addGeometry(Part.LineSegment(App.Vector(-5, 1, 0), App.Vector(-5, 7, 0)), False)
sketch11.addGeometry(Part.LineSegment(App.Vector(-5, 7, 0), App.Vector(-15, 7, 0)), False)
sketch11.addGeometry(Part.LineSegment(App.Vector(-15, 7, 0), App.Vector(-15, 1, 0)), False)
sketch11.addConstraint(Sketcher.Constraint("Coincident", 0, 2, 1, 1))
sketch11.addConstraint(Sketcher.Constraint("Coincident", 1, 2, 2, 1))
sketch11.addConstraint(Sketcher.Constraint("Coincident", 2, 2, 3, 1))
sketch11.addConstraint(Sketcher.Constraint("Coincident", 3, 2, 0, 1))
sketch11.addConstraint(Sketcher.Constraint("Horizontal", 0))
sketch11.addConstraint(Sketcher.Constraint("Vertical", 1))
sketch11.addConstraint(Sketcher.Constraint("Horizontal", 2))
sketch11.addConstraint(Sketcher.Constraint("Vertical", 3))
sketch11.addConstraint(Sketcher.Constraint("DistanceX", 0, 1, 0, 2, Q("10 mm")))
sketch11.addConstraint(Sketcher.Constraint("DistanceY", 1, 1, 1, 2, Q("6 mm")))
sketch11.addConstraint(Sketcher.Constraint("DistanceX", 0, 2, -1, 1, Q("5 mm")))
sketch11.addConstraint(Sketcher.Constraint("DistanceY", -1, 1, 0, 2, Q("1 mm")))
sketch11.setExpression("Constraints[8]", "Params.sketch11_width")
sketch11.setExpression("Constraints[9]", "Params.sketch11_height")
pocket10 = body.newObject("PartDesign::Pocket", "Pocket009")
pocket10.Profile = sketch11
pocket10.Type = "ThroughAll"

sketch12 = body.newObject("Sketcher::SketchObject", "Sketch011")
sketch12.AttachmentSupport = (doc.getObject("XY_Plane"), [""])
sketch12.MapMode = "FlatFace"
sketch12.addGeometry(Part.Circle(App.Vector(55, -5, 0), App.Vector(0, 0, 1), 1.5), False)
sketch12.addGeometry(Part.Circle(App.Vector(55, -15, 0), App.Vector(0, 0, 1), 1.5), False)
sketch12.addGeometry(Part.Circle(App.Vector(5, -5, 0), App.Vector(0, 0, 1), 1.5), False)
sketch12.addGeometry(Part.Circle(App.Vector(5, -15, 0), App.Vector(0, 0, 1), 1.5), False)
sketch12.addConstraint(Sketcher.Constraint("Equal", 0, 1))
sketch12.addConstraint(Sketcher.Constraint("Equal", 1, 2))
sketch12.addConstraint(Sketcher.Constraint("Equal", 2, 3))
sketch12.addConstraint(Sketcher.Constraint("Horizontal", 0, 3, 2, 3))
sketch12.addConstraint(Sketcher.Constraint("Horizontal", 1, 3, 3, 3))
sketch12.addConstraint(Sketcher.Constraint("Vertical", 0, 3, 1, 3))
sketch12.addConstraint(Sketcher.Constraint("Vertical", 2, 3, 3, 3))
sketch12.addConstraint(Sketcher.Constraint("Diameter", 0, Q("3 mm")))
sketch12.addConstraint(Sketcher.Constraint("DistanceX", -1, 1, 0, 3, Q("55 mm")))
sketch12.addConstraint(Sketcher.Constraint("DistanceY", 0, 3, -1, 1, Q("5 mm")))
sketch12.addConstraint(Sketcher.Constraint("DistanceY", 1, 3, -1, 1, Q("15 mm")))
sketch12.addConstraint(Sketcher.Constraint("DistanceX", -1, 1, 2, 3, Q("5 mm")))
sketch12.setExpression("Constraints[7]", "Params.sketch12_diameter")
pocket11 = body.newObject("PartDesign::Pocket", "Pocket010")
pocket11.Profile = sketch12
pocket11.setExpression("Length", "Params.pocket11_length")
pocket11.Reversed = True

sketch13 = body.newObject("Sketcher::SketchObject", "Sketch012")
sketch13.AttachmentSupport = (doc.getObject("YZ_Plane"), [""])
sketch13.MapMode = "FlatFace"
sketch13.addGeometry(Part.Circle(App.Vector(-9.992209, 15.994056, 0), App.Vector(0, 0, 1), 1.5), False)
sketch13.addConstraint(Sketcher.Constraint("Diameter", 0, Q("3 mm")))
sketch13.addConstraint(Sketcher.Constraint("DistanceX", 0, 3, -1, 1, Q("9.992209 mm")))
sketch13.addConstraint(Sketcher.Constraint("DistanceY", -1, 1, 0, 3, Q("15.994056 mm")))
sketch13.setExpression("Constraints[0]", "Params.sketch13_diameter")
pocket12 = body.newObject("PartDesign::Pocket", "Pocket011")
pocket12.Profile = sketch13
pocket12.Type = "ThroughAll"
pocket12.Reversed = True

doc.recompute()
